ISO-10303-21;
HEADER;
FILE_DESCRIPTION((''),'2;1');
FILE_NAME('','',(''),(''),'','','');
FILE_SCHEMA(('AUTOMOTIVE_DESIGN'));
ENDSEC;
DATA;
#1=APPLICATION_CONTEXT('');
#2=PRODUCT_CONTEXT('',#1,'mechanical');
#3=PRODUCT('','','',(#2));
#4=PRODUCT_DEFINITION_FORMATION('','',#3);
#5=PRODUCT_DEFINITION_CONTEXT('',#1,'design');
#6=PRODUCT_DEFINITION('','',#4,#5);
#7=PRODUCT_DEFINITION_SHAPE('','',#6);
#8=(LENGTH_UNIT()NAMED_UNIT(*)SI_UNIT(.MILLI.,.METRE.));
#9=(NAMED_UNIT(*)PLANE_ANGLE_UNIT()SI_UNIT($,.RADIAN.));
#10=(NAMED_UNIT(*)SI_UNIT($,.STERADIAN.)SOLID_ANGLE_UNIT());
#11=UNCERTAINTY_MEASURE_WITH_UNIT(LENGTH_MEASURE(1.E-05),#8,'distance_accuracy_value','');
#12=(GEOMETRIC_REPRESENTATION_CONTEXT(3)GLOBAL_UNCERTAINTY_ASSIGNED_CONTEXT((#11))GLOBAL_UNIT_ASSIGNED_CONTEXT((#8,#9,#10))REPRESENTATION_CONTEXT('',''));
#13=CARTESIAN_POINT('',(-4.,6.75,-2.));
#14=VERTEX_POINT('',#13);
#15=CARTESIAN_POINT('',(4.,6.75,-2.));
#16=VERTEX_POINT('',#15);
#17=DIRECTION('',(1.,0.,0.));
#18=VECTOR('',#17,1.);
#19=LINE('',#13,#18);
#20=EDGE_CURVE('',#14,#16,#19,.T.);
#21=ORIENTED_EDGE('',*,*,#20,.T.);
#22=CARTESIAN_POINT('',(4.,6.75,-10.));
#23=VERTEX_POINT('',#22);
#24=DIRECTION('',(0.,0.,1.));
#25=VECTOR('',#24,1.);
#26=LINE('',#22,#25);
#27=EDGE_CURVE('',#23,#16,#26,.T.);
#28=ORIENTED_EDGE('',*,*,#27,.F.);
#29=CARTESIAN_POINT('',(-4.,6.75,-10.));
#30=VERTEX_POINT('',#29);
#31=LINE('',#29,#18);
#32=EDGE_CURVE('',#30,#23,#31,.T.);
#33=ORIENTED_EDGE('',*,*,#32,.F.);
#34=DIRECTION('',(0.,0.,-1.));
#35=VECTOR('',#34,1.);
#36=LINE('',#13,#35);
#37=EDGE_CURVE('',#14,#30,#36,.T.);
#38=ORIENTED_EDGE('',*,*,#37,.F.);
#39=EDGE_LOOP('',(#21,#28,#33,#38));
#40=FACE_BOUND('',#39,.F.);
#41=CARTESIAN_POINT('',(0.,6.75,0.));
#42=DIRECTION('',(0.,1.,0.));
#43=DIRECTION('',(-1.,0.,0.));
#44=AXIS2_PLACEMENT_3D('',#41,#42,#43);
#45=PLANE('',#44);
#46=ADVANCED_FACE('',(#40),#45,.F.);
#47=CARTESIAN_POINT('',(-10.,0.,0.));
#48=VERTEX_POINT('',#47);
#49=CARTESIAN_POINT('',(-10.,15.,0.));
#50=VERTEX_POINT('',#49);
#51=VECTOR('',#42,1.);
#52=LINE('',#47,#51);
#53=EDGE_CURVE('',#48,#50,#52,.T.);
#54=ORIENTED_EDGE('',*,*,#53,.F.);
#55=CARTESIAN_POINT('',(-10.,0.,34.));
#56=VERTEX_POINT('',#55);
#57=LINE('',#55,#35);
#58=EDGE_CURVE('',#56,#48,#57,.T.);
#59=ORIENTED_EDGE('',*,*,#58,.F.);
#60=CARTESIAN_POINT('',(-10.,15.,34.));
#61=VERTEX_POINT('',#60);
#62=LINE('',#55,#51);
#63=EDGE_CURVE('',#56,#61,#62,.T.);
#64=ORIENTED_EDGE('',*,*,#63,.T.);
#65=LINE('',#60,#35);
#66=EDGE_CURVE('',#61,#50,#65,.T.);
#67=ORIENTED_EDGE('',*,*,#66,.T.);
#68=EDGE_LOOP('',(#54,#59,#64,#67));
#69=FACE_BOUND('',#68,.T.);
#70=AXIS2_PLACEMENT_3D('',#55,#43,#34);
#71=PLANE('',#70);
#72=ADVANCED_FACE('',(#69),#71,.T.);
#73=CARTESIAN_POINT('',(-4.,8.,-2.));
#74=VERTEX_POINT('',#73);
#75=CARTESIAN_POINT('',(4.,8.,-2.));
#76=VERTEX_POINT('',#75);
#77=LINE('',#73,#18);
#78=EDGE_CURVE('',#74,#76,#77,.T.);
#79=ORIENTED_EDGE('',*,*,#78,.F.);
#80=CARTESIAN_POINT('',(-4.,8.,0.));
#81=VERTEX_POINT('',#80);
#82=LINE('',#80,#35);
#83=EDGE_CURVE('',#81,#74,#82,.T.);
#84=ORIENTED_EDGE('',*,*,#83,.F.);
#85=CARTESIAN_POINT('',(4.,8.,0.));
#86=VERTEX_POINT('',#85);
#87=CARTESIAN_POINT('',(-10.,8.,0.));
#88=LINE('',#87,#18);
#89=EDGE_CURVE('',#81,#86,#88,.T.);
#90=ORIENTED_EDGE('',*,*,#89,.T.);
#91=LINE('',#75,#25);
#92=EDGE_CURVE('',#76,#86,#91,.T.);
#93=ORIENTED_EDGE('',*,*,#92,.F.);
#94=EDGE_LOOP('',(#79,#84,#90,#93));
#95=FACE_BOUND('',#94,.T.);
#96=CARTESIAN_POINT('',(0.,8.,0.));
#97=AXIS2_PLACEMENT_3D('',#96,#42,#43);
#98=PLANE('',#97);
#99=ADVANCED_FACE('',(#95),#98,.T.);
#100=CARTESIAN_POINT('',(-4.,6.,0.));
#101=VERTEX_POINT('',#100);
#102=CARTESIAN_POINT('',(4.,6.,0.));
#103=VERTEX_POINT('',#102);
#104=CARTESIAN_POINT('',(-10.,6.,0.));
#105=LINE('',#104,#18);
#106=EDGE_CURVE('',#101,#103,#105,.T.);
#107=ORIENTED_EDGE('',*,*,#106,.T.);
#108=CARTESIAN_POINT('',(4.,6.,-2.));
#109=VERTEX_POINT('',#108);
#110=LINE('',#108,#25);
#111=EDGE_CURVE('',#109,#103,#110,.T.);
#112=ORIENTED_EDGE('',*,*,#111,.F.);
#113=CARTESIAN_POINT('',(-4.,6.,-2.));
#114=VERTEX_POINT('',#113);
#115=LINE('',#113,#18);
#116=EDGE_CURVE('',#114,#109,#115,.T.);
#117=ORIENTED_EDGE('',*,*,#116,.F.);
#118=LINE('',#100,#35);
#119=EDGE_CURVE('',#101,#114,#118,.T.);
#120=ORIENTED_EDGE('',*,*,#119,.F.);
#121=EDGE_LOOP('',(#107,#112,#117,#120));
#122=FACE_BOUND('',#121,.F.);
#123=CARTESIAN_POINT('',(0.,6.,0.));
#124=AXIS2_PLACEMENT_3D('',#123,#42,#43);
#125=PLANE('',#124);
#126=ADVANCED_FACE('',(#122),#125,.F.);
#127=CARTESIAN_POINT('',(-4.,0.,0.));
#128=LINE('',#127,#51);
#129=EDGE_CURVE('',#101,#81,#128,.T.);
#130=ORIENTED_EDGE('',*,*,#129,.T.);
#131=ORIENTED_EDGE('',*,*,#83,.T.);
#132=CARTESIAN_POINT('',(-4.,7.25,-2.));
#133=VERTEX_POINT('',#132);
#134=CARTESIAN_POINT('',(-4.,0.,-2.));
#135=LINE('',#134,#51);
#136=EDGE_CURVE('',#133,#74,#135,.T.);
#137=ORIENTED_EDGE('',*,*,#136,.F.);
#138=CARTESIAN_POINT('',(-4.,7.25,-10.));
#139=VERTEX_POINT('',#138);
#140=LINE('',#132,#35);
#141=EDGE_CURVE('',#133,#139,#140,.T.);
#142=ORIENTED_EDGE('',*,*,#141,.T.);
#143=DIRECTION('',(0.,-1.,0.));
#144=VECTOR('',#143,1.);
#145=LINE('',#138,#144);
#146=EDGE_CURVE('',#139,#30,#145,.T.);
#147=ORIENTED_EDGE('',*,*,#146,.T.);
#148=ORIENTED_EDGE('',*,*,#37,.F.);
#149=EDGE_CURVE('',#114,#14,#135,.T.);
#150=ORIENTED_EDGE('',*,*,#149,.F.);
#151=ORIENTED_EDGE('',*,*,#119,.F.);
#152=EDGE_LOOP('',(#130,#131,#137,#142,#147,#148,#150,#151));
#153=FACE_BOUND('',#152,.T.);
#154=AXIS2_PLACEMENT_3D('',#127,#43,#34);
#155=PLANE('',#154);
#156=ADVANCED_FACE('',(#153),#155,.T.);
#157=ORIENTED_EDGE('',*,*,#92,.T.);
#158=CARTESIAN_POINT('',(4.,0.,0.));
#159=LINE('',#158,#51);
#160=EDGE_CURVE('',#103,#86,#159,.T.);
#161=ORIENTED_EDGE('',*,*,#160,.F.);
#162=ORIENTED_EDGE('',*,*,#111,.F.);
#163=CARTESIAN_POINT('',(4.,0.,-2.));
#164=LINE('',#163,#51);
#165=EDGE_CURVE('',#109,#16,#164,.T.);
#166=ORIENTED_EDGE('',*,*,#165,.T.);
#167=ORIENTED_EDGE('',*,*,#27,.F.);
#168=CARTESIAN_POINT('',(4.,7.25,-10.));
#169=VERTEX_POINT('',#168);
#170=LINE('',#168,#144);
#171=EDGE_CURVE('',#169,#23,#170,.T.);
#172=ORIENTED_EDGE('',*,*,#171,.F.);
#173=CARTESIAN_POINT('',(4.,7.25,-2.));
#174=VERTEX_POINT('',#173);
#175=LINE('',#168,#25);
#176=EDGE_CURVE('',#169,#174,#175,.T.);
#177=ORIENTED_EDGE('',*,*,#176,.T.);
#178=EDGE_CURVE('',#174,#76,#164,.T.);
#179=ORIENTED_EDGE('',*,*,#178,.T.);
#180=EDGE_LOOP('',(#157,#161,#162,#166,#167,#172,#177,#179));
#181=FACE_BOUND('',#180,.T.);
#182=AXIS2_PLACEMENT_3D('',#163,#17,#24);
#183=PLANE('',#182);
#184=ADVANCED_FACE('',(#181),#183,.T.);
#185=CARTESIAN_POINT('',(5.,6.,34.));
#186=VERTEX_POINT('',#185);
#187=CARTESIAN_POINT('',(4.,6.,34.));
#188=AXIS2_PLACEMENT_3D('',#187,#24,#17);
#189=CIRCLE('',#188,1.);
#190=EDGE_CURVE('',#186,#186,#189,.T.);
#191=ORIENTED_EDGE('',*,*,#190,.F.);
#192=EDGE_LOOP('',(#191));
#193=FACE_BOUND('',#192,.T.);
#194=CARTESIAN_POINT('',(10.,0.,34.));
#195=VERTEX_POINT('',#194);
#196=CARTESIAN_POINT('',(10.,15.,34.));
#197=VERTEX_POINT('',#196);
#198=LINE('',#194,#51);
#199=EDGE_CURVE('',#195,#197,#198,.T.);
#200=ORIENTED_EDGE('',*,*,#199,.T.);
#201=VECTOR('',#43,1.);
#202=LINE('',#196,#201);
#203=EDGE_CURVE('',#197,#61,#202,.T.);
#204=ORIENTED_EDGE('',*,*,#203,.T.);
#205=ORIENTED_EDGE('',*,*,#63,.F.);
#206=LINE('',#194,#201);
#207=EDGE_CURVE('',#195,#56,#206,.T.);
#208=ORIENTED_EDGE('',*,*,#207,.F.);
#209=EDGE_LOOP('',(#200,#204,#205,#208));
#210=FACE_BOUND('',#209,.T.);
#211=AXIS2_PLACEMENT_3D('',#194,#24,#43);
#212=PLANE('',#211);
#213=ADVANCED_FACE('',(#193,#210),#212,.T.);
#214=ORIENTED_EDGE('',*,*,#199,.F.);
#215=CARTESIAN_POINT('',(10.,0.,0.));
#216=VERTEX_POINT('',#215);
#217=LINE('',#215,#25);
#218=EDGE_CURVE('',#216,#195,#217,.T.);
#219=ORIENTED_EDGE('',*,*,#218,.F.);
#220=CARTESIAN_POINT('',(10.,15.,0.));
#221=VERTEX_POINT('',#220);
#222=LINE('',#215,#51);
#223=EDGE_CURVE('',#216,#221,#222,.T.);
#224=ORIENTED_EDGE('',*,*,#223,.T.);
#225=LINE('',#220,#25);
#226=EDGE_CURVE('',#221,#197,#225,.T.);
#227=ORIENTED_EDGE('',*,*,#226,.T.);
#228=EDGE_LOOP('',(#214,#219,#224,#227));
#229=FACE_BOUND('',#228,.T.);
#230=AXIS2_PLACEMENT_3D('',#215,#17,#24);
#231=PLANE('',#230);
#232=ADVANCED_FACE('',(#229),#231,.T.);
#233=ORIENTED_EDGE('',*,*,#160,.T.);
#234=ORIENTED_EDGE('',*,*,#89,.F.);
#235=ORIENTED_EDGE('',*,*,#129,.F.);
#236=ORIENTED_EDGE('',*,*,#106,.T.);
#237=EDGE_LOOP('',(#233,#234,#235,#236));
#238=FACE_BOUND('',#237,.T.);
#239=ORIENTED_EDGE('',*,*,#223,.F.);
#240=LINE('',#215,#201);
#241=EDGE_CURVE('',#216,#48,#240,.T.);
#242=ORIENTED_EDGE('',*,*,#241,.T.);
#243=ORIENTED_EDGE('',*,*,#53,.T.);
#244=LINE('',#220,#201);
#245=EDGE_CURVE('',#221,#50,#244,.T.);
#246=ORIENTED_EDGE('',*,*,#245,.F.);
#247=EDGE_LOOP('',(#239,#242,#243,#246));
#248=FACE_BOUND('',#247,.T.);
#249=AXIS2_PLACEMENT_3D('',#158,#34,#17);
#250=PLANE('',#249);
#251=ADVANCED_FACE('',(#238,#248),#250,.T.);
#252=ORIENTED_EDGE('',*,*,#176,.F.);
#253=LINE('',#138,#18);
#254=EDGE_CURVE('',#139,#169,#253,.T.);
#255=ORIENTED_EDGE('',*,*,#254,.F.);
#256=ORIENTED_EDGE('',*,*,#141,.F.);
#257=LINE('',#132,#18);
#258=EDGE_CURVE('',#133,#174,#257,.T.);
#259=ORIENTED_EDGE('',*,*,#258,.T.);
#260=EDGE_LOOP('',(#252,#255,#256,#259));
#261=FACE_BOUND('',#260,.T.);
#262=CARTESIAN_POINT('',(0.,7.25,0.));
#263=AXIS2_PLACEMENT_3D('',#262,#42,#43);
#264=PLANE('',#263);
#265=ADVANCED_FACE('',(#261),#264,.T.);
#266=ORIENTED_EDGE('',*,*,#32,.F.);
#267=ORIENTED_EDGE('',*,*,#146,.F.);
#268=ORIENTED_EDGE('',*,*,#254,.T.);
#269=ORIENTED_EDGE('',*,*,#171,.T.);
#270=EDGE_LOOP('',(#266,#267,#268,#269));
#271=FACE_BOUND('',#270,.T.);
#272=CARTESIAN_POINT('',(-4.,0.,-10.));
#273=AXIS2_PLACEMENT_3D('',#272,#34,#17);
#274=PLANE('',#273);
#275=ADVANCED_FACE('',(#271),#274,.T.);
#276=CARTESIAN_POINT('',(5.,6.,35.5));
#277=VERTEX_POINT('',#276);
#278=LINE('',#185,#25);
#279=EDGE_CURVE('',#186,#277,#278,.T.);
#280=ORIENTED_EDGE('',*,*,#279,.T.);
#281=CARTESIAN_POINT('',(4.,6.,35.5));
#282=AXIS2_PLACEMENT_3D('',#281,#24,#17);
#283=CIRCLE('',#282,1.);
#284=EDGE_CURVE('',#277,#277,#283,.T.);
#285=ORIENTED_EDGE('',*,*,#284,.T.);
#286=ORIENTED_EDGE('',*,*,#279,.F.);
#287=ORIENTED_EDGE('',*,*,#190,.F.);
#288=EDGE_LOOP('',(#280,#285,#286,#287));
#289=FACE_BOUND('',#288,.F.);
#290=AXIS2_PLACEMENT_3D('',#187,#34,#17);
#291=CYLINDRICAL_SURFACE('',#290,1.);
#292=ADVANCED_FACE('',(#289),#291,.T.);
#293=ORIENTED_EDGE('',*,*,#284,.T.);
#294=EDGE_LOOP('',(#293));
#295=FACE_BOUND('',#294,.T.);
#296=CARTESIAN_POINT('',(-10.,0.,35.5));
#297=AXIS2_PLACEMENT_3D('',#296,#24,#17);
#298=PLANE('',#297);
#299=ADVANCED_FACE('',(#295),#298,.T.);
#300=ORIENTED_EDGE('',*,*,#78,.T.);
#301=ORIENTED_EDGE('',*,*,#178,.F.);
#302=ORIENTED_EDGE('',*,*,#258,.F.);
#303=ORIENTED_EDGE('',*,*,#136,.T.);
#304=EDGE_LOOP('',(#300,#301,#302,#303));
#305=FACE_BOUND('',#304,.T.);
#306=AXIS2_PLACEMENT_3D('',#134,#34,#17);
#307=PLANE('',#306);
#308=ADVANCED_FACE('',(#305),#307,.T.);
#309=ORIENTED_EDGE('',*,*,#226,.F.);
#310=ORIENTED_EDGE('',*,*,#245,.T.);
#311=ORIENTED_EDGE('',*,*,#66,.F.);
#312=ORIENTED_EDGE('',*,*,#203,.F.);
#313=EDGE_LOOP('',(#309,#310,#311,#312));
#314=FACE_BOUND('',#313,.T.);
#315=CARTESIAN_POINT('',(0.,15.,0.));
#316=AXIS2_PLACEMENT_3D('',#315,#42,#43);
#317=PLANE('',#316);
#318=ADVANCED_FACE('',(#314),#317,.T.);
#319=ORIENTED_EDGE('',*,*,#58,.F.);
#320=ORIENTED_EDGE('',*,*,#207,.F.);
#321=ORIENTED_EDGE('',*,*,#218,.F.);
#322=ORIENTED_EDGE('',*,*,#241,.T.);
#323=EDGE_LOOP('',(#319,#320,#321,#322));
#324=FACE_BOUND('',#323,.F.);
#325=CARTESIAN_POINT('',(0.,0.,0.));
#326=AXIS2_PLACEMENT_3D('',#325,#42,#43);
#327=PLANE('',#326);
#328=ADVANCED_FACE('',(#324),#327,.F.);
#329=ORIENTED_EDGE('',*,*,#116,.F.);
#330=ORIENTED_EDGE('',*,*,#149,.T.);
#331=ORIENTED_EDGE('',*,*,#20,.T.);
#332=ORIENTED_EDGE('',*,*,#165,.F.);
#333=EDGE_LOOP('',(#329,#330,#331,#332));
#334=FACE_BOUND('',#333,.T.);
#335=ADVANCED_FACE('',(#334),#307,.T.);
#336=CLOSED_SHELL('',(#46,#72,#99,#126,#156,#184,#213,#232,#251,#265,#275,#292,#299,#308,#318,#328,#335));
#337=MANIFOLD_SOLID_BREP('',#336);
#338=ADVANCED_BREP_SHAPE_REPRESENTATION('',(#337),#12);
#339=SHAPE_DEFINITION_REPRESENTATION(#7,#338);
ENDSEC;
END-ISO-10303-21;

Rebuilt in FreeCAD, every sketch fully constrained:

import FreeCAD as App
import Part
import Sketcher

doc = App.newDocument("Part")
body = doc.addObject("PartDesign::Body", "Body")
body.AllowCompound = True

# Sketch on XZ plane
sketch1 = body.newObject("Sketcher::SketchObject", "Sketch")
sketch1.AttachmentSupport = (doc.getObject("XZ_Plane"), [""])
sketch1.MapMode = "FlatFace"
sketch1.addGeometry([
    Part.LineSegment(App.Vector(-10, 34, 0), App.Vector(10, 34, 0)),
    Part.LineSegment(App.Vector(10, 34, 0), App.Vector(10, 0, 0)),
    Part.LineSegment(App.Vector(10, 0, 0), App.Vector(-10, 0, 0)),
    Part.LineSegment(App.Vector(-10, 0, 0), App.Vector(-10, 34, 0)),
], False)
sketch1.addConstraint([
    Sketcher.Constraint("Coincident", 0, 2, 1, 1),
    Sketcher.Constraint("Coincident", 1, 2, 2, 1),
    Sketcher.Constraint("Coincident", 2, 2, 3, 1),
    Sketcher.Constraint("Coincident", 3, 2, 0, 1),
    Sketcher.Constraint("Horizontal", 0),
    Sketcher.Constraint("Vertical", 1),
    Sketcher.Constraint("Horizontal", 2),
    Sketcher.Constraint("Vertical", 3),
    Sketcher.Constraint("Symmetric", 1, 2, 2, 2, -1, 1),
    Sketcher.Constraint("DistanceX", 0, 1, 0, 2, 20.0),
    Sketcher.Constraint("DistanceY", 1, 2, 1, 1, 34.0),
])
pad1 = body.newObject("PartDesign::Pad", "Pad")
pad1.Profile = sketch1
pad1.Length = 15
pad1.Reversed = True

# Sketch on XZ plane
sketch2 = body.newObject("Sketcher::SketchObject", "Sketch001")
sketch2.AttachmentSupport = (doc.getObject("XZ_Plane"), [""])
sketch2.MapMode = "FlatFace"
sketch2.addGeometry([
    Part.LineSegment(App.Vector(-4, 0, 0), App.Vector(4, 0, 0)),
    Part.LineSegment(App.Vector(4, 0, 0), App.Vector(4, -2, 0)),
    Part.LineSegment(App.Vector(4, -2, 0), App.Vector(-4, -2, 0)),
    Part.LineSegment(App.Vector(-4, -2, 0), App.Vector(-4, 0, 0)),
], False)
sketch2.addConstraint([
    Sketcher.Constraint("Coincident", 0, 2, 1, 1),
    Sketcher.Constraint("Coincident", 1, 2, 2, 1),
    Sketcher.Constraint("Coincident", 2, 2, 3, 1),
    Sketcher.Constraint("Coincident", 3, 2, 0, 1),
    Sketcher.Constraint("Horizontal", 0),
    Sketcher.Constraint("Vertical", 1),
    Sketcher.Constraint("Horizontal", 2),
    Sketcher.Constraint("Vertical", 3),
    Sketcher.Constraint("Symmetric", 0, 2, 3, 2, -1, 1),
    Sketcher.Constraint("DistanceX", 0, 1, 0, 2, 8.0),
    Sketcher.Constraint("DistanceY", 1, 2, 1, 1, 2.0),
])
pad2 = body.newObject("PartDesign::Pad", "Pad001")
pad2.Profile = sketch2
pad2.Length = 7
pad2.Reversed = True

# Sketch on XZ plane
sketch3 = body.newObject("Sketcher::SketchObject", "Sketch002")
sketch3.AttachmentSupport = (doc.getObject("XZ_Plane"), [""])
sketch3.MapMode = "FlatFace"
sketch3.addGeometry([
    Part.LineSegment(App.Vector(-4, -2, 0), App.Vector(4, -2, 0)),
    Part.LineSegment(App.Vector(4, -2, 0), App.Vector(4, -10, 0)),
    Part.LineSegment(App.Vector(4, -10, 0), App.Vector(-4, -10, 0)),
    Part.LineSegment(App.Vector(-4, -10, 0), App.Vector(-4, -2, 0)),
], False)
sketch3.addConstraint([
    Sketcher.Constraint("Coincident", 0, 2, 1, 1),
    Sketcher.Constraint("Coincident", 1, 2, 2, 1),
    Sketcher.Constraint("Coincident", 2, 2, 3, 1),
    Sketcher.Constraint("Coincident", 3, 2, 0, 1),
    Sketcher.Constraint("Horizontal", 0),
    Sketcher.Constraint("Vertical", 1),
    Sketcher.Constraint("Horizontal", 2),
    Sketcher.Constraint("Vertical", 3),
    Sketcher.Constraint("Equal", 2, 1),
    Sketcher.Constraint("DistanceX", 0, 1, 0, 2, 8.0),
    Sketcher.Constraint("DistanceY", 0, 2, -1, 1, 2.0),
    Sketcher.Constraint("DistanceX", -1, 1, 0, 2, 4.0),
])
pad3 = body.newObject("PartDesign::Pad", "Pad002")
pad3.Profile = sketch3
pad3.Length = 7
pad3.Reversed = True

# Sketch on XZ plane
sketch4 = body.newObject("Sketcher::SketchObject", "Sketch003")
sketch4.AttachmentSupport = (doc.getObject("XZ_Plane"), [""])
sketch4.MapMode = "FlatFace"
sketch4.addGeometry([
    Part.LineSegment(App.Vector(-4, 0, 0), App.Vector(4, 0, 0)),
    Part.LineSegment(App.Vector(4, 0, 0), App.Vector(4, -2, 0)),
    Part.LineSegment(App.Vector(4, -2, 0), App.Vector(-4, -2, 0)),
    Part.LineSegment(App.Vector(-4, -2, 0), App.Vector(-4, 0, 0)),
], False)
sketch4.addConstraint([
    Sketcher.Constraint("Coincident", 0, 2, 1, 1),
    Sketcher.Constraint("Coincident", 1, 2, 2, 1),
    Sketcher.Constraint("Coincident", 2, 2, 3, 1),
    Sketcher.Constraint("Coincident", 3, 2, 0, 1),
    Sketcher.Constraint("Horizontal", 0),
    Sketcher.Constraint("Vertical", 1),
    Sketcher.Constraint("Horizontal", 2),
    Sketcher.Constraint("Vertical", 3),
    Sketcher.Constraint("Symmetric", 0, 2, 3, 2, -1, 1),
    Sketcher.Constraint("DistanceX", 0, 1, 0, 2, 8.0),
    Sketcher.Constraint("DistanceY", 1, 2, 1, 1, 2.0),
])
pocket1 = body.newObject("PartDesign::Pocket", "Pocket")
pocket1.Profile = sketch4
pocket1.Length = 8

# Sketch on XZ plane
sketch5 = body.newObject("Sketcher::SketchObject", "Sketch004")
sketch5.AttachmentSupport = (doc.getObject("XZ_Plane"), [""])
sketch5.MapMode = "FlatFace"
sketch5.addGeometry([
    Part.LineSegment(App.Vector(-4, 0, 0), App.Vector(4, 0, 0)),
    Part.LineSegment(App.Vector(4, 0, 0), App.Vector(4, -2, 0)),
    Part.LineSegment(App.Vector(4, -2, 0), App.Vector(-4, -2, 0)),
    Part.LineSegment(App.Vector(-4, -2, 0), App.Vector(-4, 0, 0)),
], False)
sketch5.addConstraint([
    Sketcher.Constraint("Coincident", 0, 2, 1, 1),
    Sketcher.Constraint("Coincident", 1, 2, 2, 1),
    Sketcher.Constraint("Coincident", 2, 2, 3, 1),
    Sketcher.Constraint("Coincident", 3, 2, 0, 1),
    Sketcher.Constraint("Horizontal", 0),
    Sketcher.Constraint("Vertical", 1),
    Sketcher.Constraint("Horizontal", 2),
    Sketcher.Constraint("Vertical", 3),
    Sketcher.Constraint("Symmetric", 0, 2, 3, 2, -1, 1),
    Sketcher.Constraint("DistanceX", 0, 1, 0, 2, 8.0),
    Sketcher.Constraint("DistanceY", 1, 2, 1, 1, 2.0),
])
pad4 = body.newObject("PartDesign::Pad", "Pad003")
pad4.Profile = sketch5
pad4.Length = 8
pad4.Reversed = True

# Sketch on XZ plane
sketch6 = body.newObject("Sketcher::SketchObject", "Sketch005")
sketch6.AttachmentSupport = (doc.getObject("XZ_Plane"), [""])
sketch6.MapMode = "FlatFace"
sketch6.addGeometry([
    Part.LineSegment(App.Vector(-4, 0, 0), App.Vector(4, 0, 0)),
    Part.LineSegment(App.Vector(4, 0, 0), App.Vector(4, -2, 0)),
    Part.LineSegment(App.Vector(4, -2, 0), App.Vector(-4, -2, 0)),
    Part.LineSegment(App.Vector(-4, -2, 0), App.Vector(-4, 0, 0)),
], False)
sketch6.addConstraint([
    Sketcher.Constraint("Coincident", 0, 2, 1, 1),
    Sketcher.Constraint("Coincident", 1, 2, 2, 1),
    Sketcher.Constraint("Coincident", 2, 2, 3, 1),
    Sketcher.Constraint("Coincident", 3, 2, 0, 1),
    Sketcher.Constraint("Horizontal", 0),
    Sketcher.Constraint("Vertical", 1),
    Sketcher.Constraint("Horizontal", 2),
    Sketcher.Constraint("Vertical", 3),
    Sketcher.Constraint("Symmetric", 0, 2, 3, 2, -1, 1),
    Sketcher.Constraint("DistanceX", 0, 1, 0, 2, 8.0),
    Sketcher.Constraint("DistanceY", 1, 2, 1, 1, 2.0),
])
pocket2 = body.newObject("PartDesign::Pocket", "Pocket001")
pocket2.Profile = sketch6
pocket2.Length = 6

# Sketch on XZ plane
sketch7 = body.newObject("Sketcher::SketchObject", "Sketch006")
sketch7.AttachmentSupport = (doc.getObject("XZ_Plane"), [""])
sketch7.MapMode = "FlatFace"
sketch7.addGeometry([
    Part.LineSegment(App.Vector(-4, -2, 0), App.Vector(4, -2, 0)),
    Part.LineSegment(App.Vector(4, -2, 0), App.Vector(4, -10, 0)),
    Part.LineSegment(App.Vector(4, -10, 0), App.Vector(-4, -10, 0)),
    Part.LineSegment(App.Vector(-4, -10, 0), App.Vector(-4, -2, 0)),
], False)
sketch7.addConstraint([
    Sketcher.Constraint("Coincident", 0, 2, 1, 1),
    Sketcher.Constraint("Coincident", 1, 2, 2, 1),
    Sketcher.Constraint("Coincident", 2, 2, 3, 1),
    Sketcher.Constraint("Coincident", 3, 2, 0, 1),
    Sketcher.Constraint("Horizontal", 0),
    Sketcher.Constraint("Vertical", 1),
    Sketcher.Constraint("Horizontal", 2),
    Sketcher.Constraint("Vertical", 3),
    Sketcher.Constraint("Equal", 2, 1),
    Sketcher.Constraint("DistanceX", 0, 1, 0, 2, 8.0),
    Sketcher.Constraint("DistanceY", 0, 2, -1, 1, 2.0),
    Sketcher.Constraint("DistanceX", -1, 1, 0, 2, 4.0),
])
pad5 = body.newObject("PartDesign::Pad", "Pad004")
pad5.Profile = sketch7
pad5.Length = 7.25
pad5.Reversed = True

# Sketch on XZ plane
sketch8 = body.newObject("Sketcher::SketchObject", "Sketch007")
sketch8.AttachmentSupport = (doc.getObject("XZ_Plane"), [""])
sketch8.MapMode = "FlatFace"
sketch8.addGeometry([
    Part.LineSegment(App.Vector(-4, -2, 0), App.Vector(4, -2, 0)),
    Part.LineSegment(App.Vector(4, -2, 0), App.Vector(4, -10, 0)),
    Part.LineSegment(App.Vector(4, -10, 0), App.Vector(-4, -10, 0)),
    Part.LineSegment(App.Vector(-4, -10, 0), App.Vector(-4, -2, 0)),
], False)
sketch8.addConstraint([
    Sketcher.Constraint("Coincident", 0, 2, 1, 1),
    Sketcher.Constraint("Coincident", 1, 2, 2, 1),
    Sketcher.Constraint("Coincident", 2, 2, 3, 1),
    Sketcher.Constraint("Coincident", 3, 2, 0, 1),
    Sketcher.Constraint("Horizontal", 0),
    Sketcher.Constraint("Vertical", 1),
    Sketcher.Constraint("Horizontal", 2),
    Sketcher.Constraint("Vertical", 3),
    Sketcher.Constraint("Equal", 2, 1),
    Sketcher.Constraint("DistanceX", 0, 1, 0, 2, 8.0),
    Sketcher.Constraint("DistanceY", 0, 2, -1, 1, 2.0),
    Sketcher.Constraint("DistanceX", -1, 1, 0, 2, 4.0),
])
pocket3 = body.newObject("PartDesign::Pocket", "Pocket002")
pocket3.Profile = sketch8
pocket3.Length = 6.75

# Sketch on XY plane
sketch9 = body.newObject("Sketcher::SketchObject", "Sketch008")
sketch9.AttachmentSupport = (doc.getObject("XY_Plane"), [""])
sketch9.MapMode = "FlatFace"
sketch9.AttachmentOffset = App.Placement(App.Vector(0, 0, 34), App.Rotation())
sketch9.addGeometry(Part.Circle(App.Vector(4, 6, 0), App.Vector(0, 0, 1), 1), False)
sketch9.addConstraint([
    Sketcher.Constraint("Diameter", 0, 2.0),
    Sketcher.Constraint("DistanceX", -1, 1, 0, 3, 4.0),
    Sketcher.Constraint("DistanceY", -1, 1, 0, 3, 6.0),
])
pad6 = body.newObject("PartDesign::Pad", "Pad005")
pad6.Profile = sketch9
pad6.Length = 1.5

doc.recompute()
